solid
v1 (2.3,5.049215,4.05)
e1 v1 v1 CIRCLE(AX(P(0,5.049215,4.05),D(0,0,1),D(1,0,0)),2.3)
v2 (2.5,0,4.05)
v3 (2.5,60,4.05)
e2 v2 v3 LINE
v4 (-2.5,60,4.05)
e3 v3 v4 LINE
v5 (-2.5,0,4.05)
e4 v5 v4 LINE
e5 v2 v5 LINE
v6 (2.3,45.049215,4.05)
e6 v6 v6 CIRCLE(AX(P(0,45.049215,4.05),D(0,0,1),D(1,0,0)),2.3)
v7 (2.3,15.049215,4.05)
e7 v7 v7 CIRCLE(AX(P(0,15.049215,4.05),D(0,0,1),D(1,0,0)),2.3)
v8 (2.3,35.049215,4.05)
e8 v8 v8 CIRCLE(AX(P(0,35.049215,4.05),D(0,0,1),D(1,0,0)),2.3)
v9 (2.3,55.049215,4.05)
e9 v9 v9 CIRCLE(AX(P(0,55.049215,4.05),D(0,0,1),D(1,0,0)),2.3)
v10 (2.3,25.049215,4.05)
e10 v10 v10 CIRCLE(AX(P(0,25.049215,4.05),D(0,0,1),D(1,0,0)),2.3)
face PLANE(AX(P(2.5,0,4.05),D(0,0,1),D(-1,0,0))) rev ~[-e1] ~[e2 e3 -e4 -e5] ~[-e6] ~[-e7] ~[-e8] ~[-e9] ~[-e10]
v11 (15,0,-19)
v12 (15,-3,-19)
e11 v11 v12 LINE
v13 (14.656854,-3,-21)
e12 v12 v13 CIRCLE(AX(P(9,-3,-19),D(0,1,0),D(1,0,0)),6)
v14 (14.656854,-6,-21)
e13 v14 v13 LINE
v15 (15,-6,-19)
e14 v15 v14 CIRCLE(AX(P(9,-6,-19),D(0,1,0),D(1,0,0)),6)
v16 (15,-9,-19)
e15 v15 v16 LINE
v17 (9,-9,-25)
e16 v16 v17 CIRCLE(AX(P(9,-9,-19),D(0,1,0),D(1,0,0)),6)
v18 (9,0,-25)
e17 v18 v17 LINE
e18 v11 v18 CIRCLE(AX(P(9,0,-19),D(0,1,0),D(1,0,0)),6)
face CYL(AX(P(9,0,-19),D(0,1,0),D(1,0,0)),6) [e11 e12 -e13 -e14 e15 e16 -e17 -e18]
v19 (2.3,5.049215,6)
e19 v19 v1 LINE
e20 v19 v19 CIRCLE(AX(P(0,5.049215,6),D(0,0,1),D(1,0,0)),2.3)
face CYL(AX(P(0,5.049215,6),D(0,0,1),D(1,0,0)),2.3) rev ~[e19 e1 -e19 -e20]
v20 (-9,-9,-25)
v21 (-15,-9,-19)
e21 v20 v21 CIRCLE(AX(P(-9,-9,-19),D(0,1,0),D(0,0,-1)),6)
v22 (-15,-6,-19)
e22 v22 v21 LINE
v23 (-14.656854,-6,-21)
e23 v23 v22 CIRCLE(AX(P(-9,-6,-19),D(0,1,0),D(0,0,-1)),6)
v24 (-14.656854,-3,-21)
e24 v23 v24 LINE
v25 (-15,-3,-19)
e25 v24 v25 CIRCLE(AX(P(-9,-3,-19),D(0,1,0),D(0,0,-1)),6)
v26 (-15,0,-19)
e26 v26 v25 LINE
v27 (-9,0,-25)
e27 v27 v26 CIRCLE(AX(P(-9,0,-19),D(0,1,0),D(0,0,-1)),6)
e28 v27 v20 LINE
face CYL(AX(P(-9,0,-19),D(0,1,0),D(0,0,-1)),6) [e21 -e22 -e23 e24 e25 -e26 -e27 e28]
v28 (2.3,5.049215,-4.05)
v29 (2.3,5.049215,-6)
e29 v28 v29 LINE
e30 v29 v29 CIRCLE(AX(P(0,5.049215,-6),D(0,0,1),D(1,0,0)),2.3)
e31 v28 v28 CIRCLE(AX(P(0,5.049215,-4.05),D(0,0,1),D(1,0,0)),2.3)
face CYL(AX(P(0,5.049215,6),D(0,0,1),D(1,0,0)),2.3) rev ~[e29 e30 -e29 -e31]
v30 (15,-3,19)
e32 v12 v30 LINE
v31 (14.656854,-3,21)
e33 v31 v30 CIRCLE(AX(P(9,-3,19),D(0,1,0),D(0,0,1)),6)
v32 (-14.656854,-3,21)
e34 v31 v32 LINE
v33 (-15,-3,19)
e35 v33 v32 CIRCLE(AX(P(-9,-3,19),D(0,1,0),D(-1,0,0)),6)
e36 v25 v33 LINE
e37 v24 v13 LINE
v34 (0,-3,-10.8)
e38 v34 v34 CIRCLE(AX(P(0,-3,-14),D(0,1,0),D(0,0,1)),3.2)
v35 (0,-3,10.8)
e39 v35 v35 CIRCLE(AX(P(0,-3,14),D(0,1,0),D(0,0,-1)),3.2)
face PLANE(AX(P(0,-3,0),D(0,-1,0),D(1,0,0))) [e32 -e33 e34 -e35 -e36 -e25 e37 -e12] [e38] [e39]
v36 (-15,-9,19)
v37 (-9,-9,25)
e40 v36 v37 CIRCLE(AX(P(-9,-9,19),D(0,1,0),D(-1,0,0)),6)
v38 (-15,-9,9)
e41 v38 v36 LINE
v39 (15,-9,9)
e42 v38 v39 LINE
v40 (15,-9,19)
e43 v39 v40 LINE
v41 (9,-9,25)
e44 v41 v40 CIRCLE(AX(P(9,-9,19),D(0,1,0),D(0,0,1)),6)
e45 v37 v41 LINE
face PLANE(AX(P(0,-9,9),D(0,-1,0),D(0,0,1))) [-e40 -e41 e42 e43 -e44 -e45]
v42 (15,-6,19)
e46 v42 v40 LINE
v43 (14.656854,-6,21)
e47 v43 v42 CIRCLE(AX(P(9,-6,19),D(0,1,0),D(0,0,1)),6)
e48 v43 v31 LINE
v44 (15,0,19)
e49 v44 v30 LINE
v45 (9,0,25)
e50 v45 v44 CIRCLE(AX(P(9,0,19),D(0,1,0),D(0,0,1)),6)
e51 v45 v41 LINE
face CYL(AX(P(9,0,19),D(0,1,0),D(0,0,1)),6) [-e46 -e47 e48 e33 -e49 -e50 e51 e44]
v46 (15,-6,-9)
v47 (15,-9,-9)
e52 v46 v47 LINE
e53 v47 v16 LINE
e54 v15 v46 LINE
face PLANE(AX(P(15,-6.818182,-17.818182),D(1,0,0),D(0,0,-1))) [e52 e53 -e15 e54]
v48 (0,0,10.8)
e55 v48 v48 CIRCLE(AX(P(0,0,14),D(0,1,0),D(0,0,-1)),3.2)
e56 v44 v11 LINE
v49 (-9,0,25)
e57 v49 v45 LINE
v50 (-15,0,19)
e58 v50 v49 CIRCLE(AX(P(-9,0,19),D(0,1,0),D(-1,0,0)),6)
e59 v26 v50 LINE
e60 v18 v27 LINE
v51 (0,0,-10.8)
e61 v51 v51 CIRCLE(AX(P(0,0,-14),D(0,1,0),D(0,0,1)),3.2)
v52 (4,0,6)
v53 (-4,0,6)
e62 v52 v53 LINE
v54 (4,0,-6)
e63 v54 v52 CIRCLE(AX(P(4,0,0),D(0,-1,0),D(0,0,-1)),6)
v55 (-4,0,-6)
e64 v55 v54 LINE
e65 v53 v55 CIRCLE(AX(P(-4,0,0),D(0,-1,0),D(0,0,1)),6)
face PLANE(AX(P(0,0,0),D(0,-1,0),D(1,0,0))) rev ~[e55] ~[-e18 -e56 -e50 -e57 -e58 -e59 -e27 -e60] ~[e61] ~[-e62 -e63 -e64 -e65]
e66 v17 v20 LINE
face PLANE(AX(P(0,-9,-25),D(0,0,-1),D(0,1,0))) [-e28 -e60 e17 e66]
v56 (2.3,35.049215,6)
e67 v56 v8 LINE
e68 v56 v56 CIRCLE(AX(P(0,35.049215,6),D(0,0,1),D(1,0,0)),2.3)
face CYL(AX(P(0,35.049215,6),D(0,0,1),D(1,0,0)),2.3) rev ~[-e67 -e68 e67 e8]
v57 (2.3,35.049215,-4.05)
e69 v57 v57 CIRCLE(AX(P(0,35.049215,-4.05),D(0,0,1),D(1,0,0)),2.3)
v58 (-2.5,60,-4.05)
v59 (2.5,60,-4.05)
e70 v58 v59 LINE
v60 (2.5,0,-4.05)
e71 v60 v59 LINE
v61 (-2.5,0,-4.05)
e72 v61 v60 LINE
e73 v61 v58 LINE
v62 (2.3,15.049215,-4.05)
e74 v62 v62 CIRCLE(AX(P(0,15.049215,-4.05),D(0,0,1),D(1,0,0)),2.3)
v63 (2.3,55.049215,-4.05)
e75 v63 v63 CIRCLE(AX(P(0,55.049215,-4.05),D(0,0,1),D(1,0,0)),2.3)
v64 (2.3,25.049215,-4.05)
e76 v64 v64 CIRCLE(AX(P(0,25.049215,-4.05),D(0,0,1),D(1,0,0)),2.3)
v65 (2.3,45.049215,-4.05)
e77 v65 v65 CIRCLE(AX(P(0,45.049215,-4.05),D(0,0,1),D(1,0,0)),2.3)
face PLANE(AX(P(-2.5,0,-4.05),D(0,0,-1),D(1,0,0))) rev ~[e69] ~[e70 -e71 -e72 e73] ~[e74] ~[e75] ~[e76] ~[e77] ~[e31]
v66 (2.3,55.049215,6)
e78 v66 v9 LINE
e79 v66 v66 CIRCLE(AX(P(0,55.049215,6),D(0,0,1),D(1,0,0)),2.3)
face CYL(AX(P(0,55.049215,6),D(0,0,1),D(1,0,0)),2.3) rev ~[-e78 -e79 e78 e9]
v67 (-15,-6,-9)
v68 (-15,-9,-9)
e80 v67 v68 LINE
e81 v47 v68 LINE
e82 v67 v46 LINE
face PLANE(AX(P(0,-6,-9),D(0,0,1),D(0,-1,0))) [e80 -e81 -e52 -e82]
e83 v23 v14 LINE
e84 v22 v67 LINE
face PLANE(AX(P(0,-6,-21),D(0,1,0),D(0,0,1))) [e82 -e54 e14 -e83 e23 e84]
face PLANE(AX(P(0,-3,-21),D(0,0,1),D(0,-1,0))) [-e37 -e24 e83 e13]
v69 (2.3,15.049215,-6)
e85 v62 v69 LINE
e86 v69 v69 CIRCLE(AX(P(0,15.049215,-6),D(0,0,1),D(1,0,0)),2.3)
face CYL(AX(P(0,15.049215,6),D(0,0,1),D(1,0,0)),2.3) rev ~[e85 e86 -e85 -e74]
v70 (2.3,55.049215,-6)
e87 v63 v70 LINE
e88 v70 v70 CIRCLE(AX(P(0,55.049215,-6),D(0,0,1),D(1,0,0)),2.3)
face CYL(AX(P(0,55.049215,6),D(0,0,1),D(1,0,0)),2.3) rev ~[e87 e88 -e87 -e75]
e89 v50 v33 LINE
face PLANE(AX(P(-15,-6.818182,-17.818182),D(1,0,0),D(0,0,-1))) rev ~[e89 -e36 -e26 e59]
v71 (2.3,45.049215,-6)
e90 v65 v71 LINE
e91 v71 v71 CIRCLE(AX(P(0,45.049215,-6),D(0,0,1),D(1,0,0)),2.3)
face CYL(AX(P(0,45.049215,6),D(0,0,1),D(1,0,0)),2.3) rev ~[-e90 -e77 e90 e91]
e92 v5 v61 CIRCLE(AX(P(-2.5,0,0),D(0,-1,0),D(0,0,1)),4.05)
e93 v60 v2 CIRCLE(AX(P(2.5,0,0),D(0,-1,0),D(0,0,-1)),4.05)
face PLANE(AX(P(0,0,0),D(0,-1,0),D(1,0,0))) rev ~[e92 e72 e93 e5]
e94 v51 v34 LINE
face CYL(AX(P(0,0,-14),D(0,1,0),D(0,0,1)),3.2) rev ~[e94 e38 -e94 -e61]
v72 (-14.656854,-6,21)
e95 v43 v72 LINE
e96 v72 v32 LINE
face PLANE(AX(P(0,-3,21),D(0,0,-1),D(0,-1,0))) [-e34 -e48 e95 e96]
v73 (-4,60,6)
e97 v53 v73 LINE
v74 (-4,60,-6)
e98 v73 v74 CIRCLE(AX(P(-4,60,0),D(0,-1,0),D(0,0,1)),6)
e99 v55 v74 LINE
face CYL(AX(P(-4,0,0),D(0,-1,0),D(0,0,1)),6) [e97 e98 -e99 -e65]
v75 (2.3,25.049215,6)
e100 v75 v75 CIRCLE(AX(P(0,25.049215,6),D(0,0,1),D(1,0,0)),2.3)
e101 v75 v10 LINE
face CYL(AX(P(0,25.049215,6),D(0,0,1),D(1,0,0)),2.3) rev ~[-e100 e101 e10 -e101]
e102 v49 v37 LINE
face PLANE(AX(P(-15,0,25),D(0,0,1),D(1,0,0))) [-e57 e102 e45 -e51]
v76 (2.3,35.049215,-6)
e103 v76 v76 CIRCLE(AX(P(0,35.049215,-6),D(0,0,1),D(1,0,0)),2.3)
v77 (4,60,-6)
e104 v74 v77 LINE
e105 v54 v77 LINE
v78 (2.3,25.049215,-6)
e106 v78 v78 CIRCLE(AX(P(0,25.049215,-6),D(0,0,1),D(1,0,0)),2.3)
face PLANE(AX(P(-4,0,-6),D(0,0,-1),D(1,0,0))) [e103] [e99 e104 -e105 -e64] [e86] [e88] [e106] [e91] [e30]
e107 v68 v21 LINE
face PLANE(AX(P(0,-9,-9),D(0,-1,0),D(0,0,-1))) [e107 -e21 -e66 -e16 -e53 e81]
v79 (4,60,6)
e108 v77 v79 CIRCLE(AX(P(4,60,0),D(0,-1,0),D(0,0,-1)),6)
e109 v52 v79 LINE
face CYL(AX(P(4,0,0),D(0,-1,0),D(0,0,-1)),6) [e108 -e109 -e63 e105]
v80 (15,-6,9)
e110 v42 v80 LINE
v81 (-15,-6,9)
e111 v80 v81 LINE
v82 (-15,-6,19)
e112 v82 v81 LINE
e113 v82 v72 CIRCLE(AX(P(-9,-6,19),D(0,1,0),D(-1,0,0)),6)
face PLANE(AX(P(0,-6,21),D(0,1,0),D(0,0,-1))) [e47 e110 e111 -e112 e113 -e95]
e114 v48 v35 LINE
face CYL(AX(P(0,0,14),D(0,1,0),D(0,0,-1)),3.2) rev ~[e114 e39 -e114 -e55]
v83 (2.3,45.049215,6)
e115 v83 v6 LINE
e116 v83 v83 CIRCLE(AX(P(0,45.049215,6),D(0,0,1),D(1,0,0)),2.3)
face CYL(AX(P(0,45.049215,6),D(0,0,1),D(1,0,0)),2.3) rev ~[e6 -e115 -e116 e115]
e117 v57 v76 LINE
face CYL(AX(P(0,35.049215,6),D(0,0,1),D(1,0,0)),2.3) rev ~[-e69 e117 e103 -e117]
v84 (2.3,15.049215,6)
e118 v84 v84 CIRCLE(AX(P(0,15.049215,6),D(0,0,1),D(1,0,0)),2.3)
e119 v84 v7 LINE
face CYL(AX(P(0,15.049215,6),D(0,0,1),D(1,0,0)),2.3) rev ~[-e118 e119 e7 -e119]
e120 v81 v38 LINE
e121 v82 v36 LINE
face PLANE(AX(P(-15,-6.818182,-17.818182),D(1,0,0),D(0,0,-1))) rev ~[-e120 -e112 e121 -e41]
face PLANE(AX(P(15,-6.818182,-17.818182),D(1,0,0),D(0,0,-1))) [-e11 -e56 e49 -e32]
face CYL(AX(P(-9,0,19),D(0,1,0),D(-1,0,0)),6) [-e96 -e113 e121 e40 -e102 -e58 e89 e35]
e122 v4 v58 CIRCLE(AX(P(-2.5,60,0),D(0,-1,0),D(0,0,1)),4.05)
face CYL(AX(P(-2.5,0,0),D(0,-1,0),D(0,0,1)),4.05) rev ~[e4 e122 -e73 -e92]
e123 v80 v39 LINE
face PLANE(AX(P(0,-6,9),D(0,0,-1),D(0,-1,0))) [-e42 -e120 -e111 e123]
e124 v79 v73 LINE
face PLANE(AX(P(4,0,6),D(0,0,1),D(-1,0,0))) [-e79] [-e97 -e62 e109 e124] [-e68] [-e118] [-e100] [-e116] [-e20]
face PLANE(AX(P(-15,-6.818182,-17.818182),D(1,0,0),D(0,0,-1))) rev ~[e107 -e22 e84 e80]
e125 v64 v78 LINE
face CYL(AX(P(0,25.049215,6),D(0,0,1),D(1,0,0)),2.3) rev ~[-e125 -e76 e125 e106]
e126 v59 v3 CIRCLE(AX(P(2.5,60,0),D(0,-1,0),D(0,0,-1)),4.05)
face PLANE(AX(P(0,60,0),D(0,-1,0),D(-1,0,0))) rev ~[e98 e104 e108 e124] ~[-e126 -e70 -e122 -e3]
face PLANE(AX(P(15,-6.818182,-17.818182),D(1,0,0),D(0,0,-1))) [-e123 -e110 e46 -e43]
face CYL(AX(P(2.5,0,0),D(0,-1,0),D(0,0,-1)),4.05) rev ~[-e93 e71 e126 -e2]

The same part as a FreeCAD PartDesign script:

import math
import FreeCAD as App
import Part
import Sketcher

V = App.Vector

doc = App.newDocument("Part")
body = doc.addObject("PartDesign::Body", "Body")

sketch1 = body.newObject("Sketcher::SketchObject", "Sketch")
sketch1.AttachmentSupport = (doc.getObject("XZ_Plane"), [""])
sketch1.MapMode = "FlatFace"
sketch1.addGeometry([
    Part.LineSegment(V(4, -6, 0), V(-4, -6, 0)),
    Part.ArcOfCircle(Part.Circle(V(-4, 0, 0), V(0, 0, 1), 6), math.radians(90), math.radians(270)),
    Part.LineSegment(V(-4, 6, 0), V(4, 6, 0)),
    Part.ArcOfCircle(Part.Circle(V(4, 0, 0), V(0, 0, 1), 6), math.radians(-90), math.radians(90)),
    Part.LineSegment(V(-2.5, -4, 0), V(2.5, -4, 0)),
    Part.ArcOfCircle(Part.Circle(V(2.5, 0, 0), V(0, 0, 1), 4), math.radians(-90), math.radians(90)),
    Part.LineSegment(V(2.5, 4, 0), V(-2.5, 4, 0)),
    Part.ArcOfCircle(Part.Circle(V(-2.5, 0, 0), V(0, 0, 1), 4), math.radians(90), math.radians(270)),
], False)
sketch1.addConstraint([
    Sketcher.Constraint("Tangent", 0, 2, 1, 2),
    Sketcher.Constraint("Tangent", 1, 1, 2, 1),
    Sketcher.Constraint("Tangent", 2, 2, 3, 2),
    Sketcher.Constraint("Tangent", 3, 1, 0, 1),
    Sketcher.Constraint("Tangent", 4, 2, 5, 1),
    Sketcher.Constraint("Tangent", 5, 2, 6, 1),
    Sketcher.Constraint("Tangent", 6, 2, 7, 1),
    Sketcher.Constraint("Tangent", 7, 2, 4, 1),
    Sketcher.Constraint("Horizontal", 0),
    Sketcher.Constraint("Horizontal", 2),
    Sketcher.Constraint("Horizontal", 4),
    Sketcher.Constraint("Horizontal", 6),
    Sketcher.Constraint("Symmetric", 1, 3, 3, 3, -1, 1),
    Sketcher.Constraint("Symmetric", 5, 3, 7, 3, -1, 1),
    Sketcher.Constraint("Radius", 1, 6.0),
    Sketcher.Constraint("DistanceX", 0, 2, 0, 1, 8.0),
    Sketcher.Constraint("DistanceX", 4, 1, 4, 2, 5.0),
    Sketcher.Constraint("Radius", 5, 4.05),
])
pad1 = body.newObject("PartDesign::Pad", "Pad")
pad1.Profile = sketch1
pad1.Length = 60
pad1.Reversed = True

sketch2 = body.newObject("Sketcher::SketchObject", "Sketch001")
sketch2.AttachmentSupport = (doc.getObject("XY_Plane"), [""])
sketch2.MapMode = "FlatFace"
sketch2.AttachmentOffset = App.Placement(V(0, 0, 6), App.Rotation())
sketch2.addGeometry([
    Part.Circle(V(0, 55, 0), V(0, 0, 1), 2.3),
    Part.Circle(V(0, 45, 0), V(0, 0, 1), 2.3),
    Part.Circle(V(0, 35, 0), V(0, 0, 1), 2.3),
    Part.Circle(V(0, 25, 0), V(0, 0, 1), 2.3),
    Part.Circle(V(0, 15, 0), V(0, 0, 1), 2.3),
    Part.Circle(V(0, 5, 0), V(0, 0, 1), 2.3),
], False)
sketch2.addConstraint([
    Sketcher.Constraint("Equal", 0, 1),
    Sketcher.Constraint("Equal", 1, 2),
    Sketcher.Constraint("Equal", 2, 3),
    Sketcher.Constraint("Equal", 3, 4),
    Sketcher.Constraint("Equal", 4, 5),
    Sketcher.Constraint("PointOnObject", 0, 3, -2),
    Sketcher.Constraint("PointOnObject", 1, 3, -2),
    Sketcher.Constraint("PointOnObject", 2, 3, -2),
    Sketcher.Constraint("PointOnObject", 3, 3, -2),
    Sketcher.Constraint("PointOnObject", 4, 3, -2),
    Sketcher.Constraint("PointOnObject", 5, 3, -2),
    Sketcher.Constraint("Diameter", 0, 4.6),
    Sketcher.Constraint("DistanceY", 1, 3, 0, 3, 10.0),
    Sketcher.Constraint("DistanceY", 2, 3, 1, 3, 10.0),
    Sketcher.Constraint("DistanceY", 3, 3, 2, 3, 10.0),
    Sketcher.Constraint("DistanceY", 4, 3, 3, 3, 10.0),
    Sketcher.Constraint("DistanceY", 5, 3, 4, 3, 10.0),
    Sketcher.Constraint("DistanceY", -1, 1, 0, 3, 55.049215),
])
pocket1 = body.newObject("PartDesign::Pocket", "Pocket")
pocket1.Profile = sketch2
pocket1.Length = 30

sketch3 = body.newObject("Sketcher::SketchObject", "Sketch002")
sketch3.AttachmentSupport = (doc.getObject("XZ_Plane"), [""])
sketch3.MapMode = "FlatFace"
sketch3.addGeometry([
    Part.LineSegment(V(-15, 25, 0), V(-15, -25, 0)),
    Part.LineSegment(V(-15, -25, 0), V(15, -25, 0)),
    Part.LineSegment(V(15, -25, 0), V(15, 25, 0)),
    Part.LineSegment(V(15, 25, 0), V(-15, 25, 0)),
], False)
sketch3.addConstraint([
    Sketcher.Constraint("Coincident", 0, 2, 1, 1),
    Sketcher.Constraint("Coincident", 1, 2, 2, 1),
    Sketcher.Constraint("Coincident", 2, 2, 3, 1),
    Sketcher.Constraint("Coincident", 3, 2, 0, 1),
    Sketcher.Constraint("Vertical", 0),
    Sketcher.Constraint("Horizontal", 1),
    Sketcher.Constraint("Vertical", 2),
    Sketcher.Constraint("Horizontal", 3),
    Sketcher.Constraint("Symmetric", 0, 2, 2, 2, -1, 1),
    Sketcher.Constraint("DistanceX", 1, 1, 1, 2, 30.0),
    Sketcher.Constraint("DistanceY", 0, 2, 0, 1, 50.0),
])
pad2 = body.newObject("PartDesign::Pad", "Pad001")
pad2.Profile = sketch3
pad2.Length = 3

sketch4 = body.newObject("Sketcher::SketchObject", "Sketch003")
sketch4.AttachmentSupport = (doc.getObject("YZ_Plane"), [""])
sketch4.MapMode = "FlatFace"
sketch4.addGeometry([
    Part.LineSegment(V(-3, 21, 0), V(-3, 25, 0)),
    Part.LineSegment(V(-3, 25, 0), V(-9, 25, 0)),
    Part.LineSegment(V(-9, 25, 0), V(-9, 9, 0)),
    Part.LineSegment(V(-9, 9, 0), V(-6, 9, 0)),
    Part.LineSegment(V(-6, 9, 0), V(-6, 21, 0)),
    Part.LineSegment(V(-6, 21, 0), V(-3, 21, 0)),
    Part.LineSegment(V(-3, -25, 0), V(-3, -21, 0)),
    Part.LineSegment(V(-3, -21, 0), V(-6, -21, 0)),
    Part.LineSegment(V(-6, -21, 0), V(-6, -9, 0)),
    Part.LineSegment(V(-6, -9, 0), V(-9, -9, 0)),
    Part.LineSegment(V(-9, -9, 0), V(-9, -25, 0)),
    Part.LineSegment(V(-9, -25, 0), V(-3, -25, 0)),
], False)
sketch4.addConstraint([
    Sketcher.Constraint("Coincident", 0, 2, 1, 1),
    Sketcher.Constraint("Coincident", 1, 2, 2, 1),
    Sketcher.Constraint("Coincident", 2, 2, 3, 1),
    Sketcher.Constraint("Coincident", 3, 2, 4, 1),
    Sketcher.Constraint("Coincident", 4, 2, 5, 1),
    Sketcher.Constraint("Coincident", 5, 2, 0, 1),
    Sketcher.Constraint("Coincident", 6, 2, 7, 1),
    Sketcher.Constraint("Coincident", 7, 2, 8, 1),
    Sketcher.Constraint("Coincident", 8, 2, 9, 1),
    Sketcher.Constraint("Coincident", 9, 2, 10, 1),
    Sketcher.Constraint("Coincident", 10, 2, 11, 1),
    Sketcher.Constraint("Coincident", 11, 2, 6, 1),
    Sketcher.Constraint("Vertical", 0),
    Sketcher.Constraint("Horizontal", 1),
    Sketcher.Constraint("Vertical", 2),
    Sketcher.Constraint("Horizontal", 3),
    Sketcher.Constraint("Vertical", 4),
    Sketcher.Constraint("Horizontal", 5),
    Sketcher.Constraint("Vertical", 6),
    Sketcher.Constraint("Horizontal", 7),
    Sketcher.Constraint("Vertical", 8),
    Sketcher.Constraint("Horizontal", 9),
    Sketcher.Constraint("Vertical", 10),
    Sketcher.Constraint("Horizontal", 11),
    Sketcher.Constraint("Symmetric", 5, 2, 6, 2, -1),
    Sketcher.Constraint("Symmetric", 3, 2, 8, 2, -1),
    Sketcher.Constraint("Symmetric", 1, 2, 10, 2, -1),
    Sketcher.Constraint("Equal", 3, 5),
    Sketcher.Constraint("DistanceX", 1, 2, 1, 1, 6.0),
    Sketcher.Constraint("DistanceY", 0, 1, 0, 2, 4.0),
    Sketcher.Constraint("DistanceY", 2, 2, 2, 1, 16.0),
    Sketcher.Constraint("DistanceX", 0, 2, -1, 1, 3.0),
    Sketcher.Constraint("DistanceY", -1, 1, 0, 2, 25.0),
])
pad3 = body.newObject("PartDesign::Pad", "Pad002")
pad3.Profile = sketch4
pad3.Length = 30
pad3.Midplane = True

sketch5 = body.newObject("Sketcher::SketchObject", "Sketch004")
sketch5.AttachmentSupport = (doc.getObject("XZ_Plane"), [""])
sketch5.MapMode = "FlatFace"
sketch5.addGeometry([
    Part.LineSegment(V(-22, -31, 0), V(-22, 31, 0)),
    Part.LineSegment(V(-22, 31, 0), V(25, 31, 0)),
    Part.LineSegment(V(25, 31, 0), V(25, -31, 0)),
    Part.LineSegment(V(25, -31, 0), V(-22, -31, 0)),
    Part.LineSegment(V(15, -19, 0), V(15, 19, 0)),
    Part.ArcOfCircle(Part.Circle(V(9, 19, 0), V(0, 0, 1), 6), math.radians(0), math.radians(90)),
    Part.LineSegment(V(9, 25, 0), V(-9, 25, 0)),
    Part.ArcOfCircle(Part.Circle(V(-9, 19, 0), V(0, 0, 1), 6), math.radians(90), math.radians(180)),
    Part.LineSegment(V(-15, 19, 0), V(-15, -19, 0)),
    Part.ArcOfCircle(Part.Circle(V(-9, -19, 0), V(0, 0, 1), 6), math.radians(180), math.radians(270)),
    Part.LineSegment(V(-9, -25, 0), V(9, -25, 0)),
    Part.ArcOfCircle(Part.Circle(V(9, -19, 0), V(0, 0, 1), 6), math.radians(-90), math.radians(0)),
], False)
sketch5.addConstraint([
    Sketcher.Constraint("Coincident", 0, 2, 1, 1),
    Sketcher.Constraint("Coincident", 1, 2, 2, 1),
    Sketcher.Constraint("Coincident", 2, 2, 3, 1),
    Sketcher.Constraint("Coincident", 3, 2, 0, 1),
    Sketcher.Constraint("Tangent", 4, 2, 5, 1),
    Sketcher.Constraint("Tangent", 5, 2, 6, 1),
    Sketcher.Constraint("Tangent", 6, 2, 7, 1),
    Sketcher.Constraint("Tangent", 7, 2, 8, 1),
    Sketcher.Constraint("Tangent", 8, 2, 9, 1),
    Sketcher.Constraint("Tangent", 9, 2, 10, 1),
    Sketcher.Constraint("Tangent", 10, 2, 11, 1),
    Sketcher.Constraint("Tangent", 11, 2, 4, 1),
    Sketcher.Constraint("Vertical", 0),
    Sketcher.Constraint("Horizontal", 1),
    Sketcher.Constraint("Vertical", 2),
    Sketcher.Constraint("Horizontal", 3),
    Sketcher.Constraint("Vertical", 4),
    Sketcher.Constraint("Horizontal", 6),
    Sketcher.Constraint("Vertical", 8),
    Sketcher.Constraint("Horizontal", 10),
    Sketcher.Constraint("Equal", 5, 7),
    Sketcher.Constraint("Equal", 7, 9),
    Sketcher.Constraint("Equal", 9, 11),
    Sketcher.Constraint("Symmetric", 5, 3, 9, 3, -1, 1),
    Sketcher.Constraint("Radius", 5, 6.0),
    Sketcher.Constraint("DistanceX", 6, 2, 6, 1, 18.0),
    Sketcher.Constraint("DistanceY", 4, 1, 4, 2, 38.0),
    Sketcher.Constraint("DistanceY", 0, 1, 0, 2, 61.593202),
    Sketcher.Constraint("DistanceX", 1, 1, 1, 2, 47.657493),
    Sketcher.Constraint("DistanceX", -1, 1, 1, 2, 25.421371),
    Sketcher.Constraint("DistanceY", -1, 1, 0, 2, 30.695414),
])
pocket2 = body.newObject("PartDesign::Pocket", "Pocket001")
pocket2.Profile = sketch5
pocket2.Length = 30
pocket2.Reversed = True

sketch6 = body.newObject("Sketcher::SketchObject", "Sketch005")
sketch6.AttachmentSupport = (doc.getObject("XZ_Plane"), [""])
sketch6.MapMode = "FlatFace"
sketch6.addGeometry([
    Part.Circle(V(0, -14, 0), V(0, 0, 1), 3.2),
    Part.Circle(V(0, 14, 0), V(0, 0, 1), 3.2),
], False)
sketch6.addConstraint([
    Sketcher.Constraint("Equal", 0, 1),
    Sketcher.Constraint("Symmetric", 0, 3, 1, 3, -1, 1),
    Sketcher.Constraint("PointOnObject", 0, 3, -2),
    Sketcher.Constraint("Diameter", 0, 6.4),
    Sketcher.Constraint("DistanceY", 0, 3, -1, 1, 14.0),
])
pocket3 = body.newObject("PartDesign::Pocket", "Pocket002")
pocket3.Profile = sketch6
pocket3.Length = 3
pocket3.Reversed = True

doc.recompute()
